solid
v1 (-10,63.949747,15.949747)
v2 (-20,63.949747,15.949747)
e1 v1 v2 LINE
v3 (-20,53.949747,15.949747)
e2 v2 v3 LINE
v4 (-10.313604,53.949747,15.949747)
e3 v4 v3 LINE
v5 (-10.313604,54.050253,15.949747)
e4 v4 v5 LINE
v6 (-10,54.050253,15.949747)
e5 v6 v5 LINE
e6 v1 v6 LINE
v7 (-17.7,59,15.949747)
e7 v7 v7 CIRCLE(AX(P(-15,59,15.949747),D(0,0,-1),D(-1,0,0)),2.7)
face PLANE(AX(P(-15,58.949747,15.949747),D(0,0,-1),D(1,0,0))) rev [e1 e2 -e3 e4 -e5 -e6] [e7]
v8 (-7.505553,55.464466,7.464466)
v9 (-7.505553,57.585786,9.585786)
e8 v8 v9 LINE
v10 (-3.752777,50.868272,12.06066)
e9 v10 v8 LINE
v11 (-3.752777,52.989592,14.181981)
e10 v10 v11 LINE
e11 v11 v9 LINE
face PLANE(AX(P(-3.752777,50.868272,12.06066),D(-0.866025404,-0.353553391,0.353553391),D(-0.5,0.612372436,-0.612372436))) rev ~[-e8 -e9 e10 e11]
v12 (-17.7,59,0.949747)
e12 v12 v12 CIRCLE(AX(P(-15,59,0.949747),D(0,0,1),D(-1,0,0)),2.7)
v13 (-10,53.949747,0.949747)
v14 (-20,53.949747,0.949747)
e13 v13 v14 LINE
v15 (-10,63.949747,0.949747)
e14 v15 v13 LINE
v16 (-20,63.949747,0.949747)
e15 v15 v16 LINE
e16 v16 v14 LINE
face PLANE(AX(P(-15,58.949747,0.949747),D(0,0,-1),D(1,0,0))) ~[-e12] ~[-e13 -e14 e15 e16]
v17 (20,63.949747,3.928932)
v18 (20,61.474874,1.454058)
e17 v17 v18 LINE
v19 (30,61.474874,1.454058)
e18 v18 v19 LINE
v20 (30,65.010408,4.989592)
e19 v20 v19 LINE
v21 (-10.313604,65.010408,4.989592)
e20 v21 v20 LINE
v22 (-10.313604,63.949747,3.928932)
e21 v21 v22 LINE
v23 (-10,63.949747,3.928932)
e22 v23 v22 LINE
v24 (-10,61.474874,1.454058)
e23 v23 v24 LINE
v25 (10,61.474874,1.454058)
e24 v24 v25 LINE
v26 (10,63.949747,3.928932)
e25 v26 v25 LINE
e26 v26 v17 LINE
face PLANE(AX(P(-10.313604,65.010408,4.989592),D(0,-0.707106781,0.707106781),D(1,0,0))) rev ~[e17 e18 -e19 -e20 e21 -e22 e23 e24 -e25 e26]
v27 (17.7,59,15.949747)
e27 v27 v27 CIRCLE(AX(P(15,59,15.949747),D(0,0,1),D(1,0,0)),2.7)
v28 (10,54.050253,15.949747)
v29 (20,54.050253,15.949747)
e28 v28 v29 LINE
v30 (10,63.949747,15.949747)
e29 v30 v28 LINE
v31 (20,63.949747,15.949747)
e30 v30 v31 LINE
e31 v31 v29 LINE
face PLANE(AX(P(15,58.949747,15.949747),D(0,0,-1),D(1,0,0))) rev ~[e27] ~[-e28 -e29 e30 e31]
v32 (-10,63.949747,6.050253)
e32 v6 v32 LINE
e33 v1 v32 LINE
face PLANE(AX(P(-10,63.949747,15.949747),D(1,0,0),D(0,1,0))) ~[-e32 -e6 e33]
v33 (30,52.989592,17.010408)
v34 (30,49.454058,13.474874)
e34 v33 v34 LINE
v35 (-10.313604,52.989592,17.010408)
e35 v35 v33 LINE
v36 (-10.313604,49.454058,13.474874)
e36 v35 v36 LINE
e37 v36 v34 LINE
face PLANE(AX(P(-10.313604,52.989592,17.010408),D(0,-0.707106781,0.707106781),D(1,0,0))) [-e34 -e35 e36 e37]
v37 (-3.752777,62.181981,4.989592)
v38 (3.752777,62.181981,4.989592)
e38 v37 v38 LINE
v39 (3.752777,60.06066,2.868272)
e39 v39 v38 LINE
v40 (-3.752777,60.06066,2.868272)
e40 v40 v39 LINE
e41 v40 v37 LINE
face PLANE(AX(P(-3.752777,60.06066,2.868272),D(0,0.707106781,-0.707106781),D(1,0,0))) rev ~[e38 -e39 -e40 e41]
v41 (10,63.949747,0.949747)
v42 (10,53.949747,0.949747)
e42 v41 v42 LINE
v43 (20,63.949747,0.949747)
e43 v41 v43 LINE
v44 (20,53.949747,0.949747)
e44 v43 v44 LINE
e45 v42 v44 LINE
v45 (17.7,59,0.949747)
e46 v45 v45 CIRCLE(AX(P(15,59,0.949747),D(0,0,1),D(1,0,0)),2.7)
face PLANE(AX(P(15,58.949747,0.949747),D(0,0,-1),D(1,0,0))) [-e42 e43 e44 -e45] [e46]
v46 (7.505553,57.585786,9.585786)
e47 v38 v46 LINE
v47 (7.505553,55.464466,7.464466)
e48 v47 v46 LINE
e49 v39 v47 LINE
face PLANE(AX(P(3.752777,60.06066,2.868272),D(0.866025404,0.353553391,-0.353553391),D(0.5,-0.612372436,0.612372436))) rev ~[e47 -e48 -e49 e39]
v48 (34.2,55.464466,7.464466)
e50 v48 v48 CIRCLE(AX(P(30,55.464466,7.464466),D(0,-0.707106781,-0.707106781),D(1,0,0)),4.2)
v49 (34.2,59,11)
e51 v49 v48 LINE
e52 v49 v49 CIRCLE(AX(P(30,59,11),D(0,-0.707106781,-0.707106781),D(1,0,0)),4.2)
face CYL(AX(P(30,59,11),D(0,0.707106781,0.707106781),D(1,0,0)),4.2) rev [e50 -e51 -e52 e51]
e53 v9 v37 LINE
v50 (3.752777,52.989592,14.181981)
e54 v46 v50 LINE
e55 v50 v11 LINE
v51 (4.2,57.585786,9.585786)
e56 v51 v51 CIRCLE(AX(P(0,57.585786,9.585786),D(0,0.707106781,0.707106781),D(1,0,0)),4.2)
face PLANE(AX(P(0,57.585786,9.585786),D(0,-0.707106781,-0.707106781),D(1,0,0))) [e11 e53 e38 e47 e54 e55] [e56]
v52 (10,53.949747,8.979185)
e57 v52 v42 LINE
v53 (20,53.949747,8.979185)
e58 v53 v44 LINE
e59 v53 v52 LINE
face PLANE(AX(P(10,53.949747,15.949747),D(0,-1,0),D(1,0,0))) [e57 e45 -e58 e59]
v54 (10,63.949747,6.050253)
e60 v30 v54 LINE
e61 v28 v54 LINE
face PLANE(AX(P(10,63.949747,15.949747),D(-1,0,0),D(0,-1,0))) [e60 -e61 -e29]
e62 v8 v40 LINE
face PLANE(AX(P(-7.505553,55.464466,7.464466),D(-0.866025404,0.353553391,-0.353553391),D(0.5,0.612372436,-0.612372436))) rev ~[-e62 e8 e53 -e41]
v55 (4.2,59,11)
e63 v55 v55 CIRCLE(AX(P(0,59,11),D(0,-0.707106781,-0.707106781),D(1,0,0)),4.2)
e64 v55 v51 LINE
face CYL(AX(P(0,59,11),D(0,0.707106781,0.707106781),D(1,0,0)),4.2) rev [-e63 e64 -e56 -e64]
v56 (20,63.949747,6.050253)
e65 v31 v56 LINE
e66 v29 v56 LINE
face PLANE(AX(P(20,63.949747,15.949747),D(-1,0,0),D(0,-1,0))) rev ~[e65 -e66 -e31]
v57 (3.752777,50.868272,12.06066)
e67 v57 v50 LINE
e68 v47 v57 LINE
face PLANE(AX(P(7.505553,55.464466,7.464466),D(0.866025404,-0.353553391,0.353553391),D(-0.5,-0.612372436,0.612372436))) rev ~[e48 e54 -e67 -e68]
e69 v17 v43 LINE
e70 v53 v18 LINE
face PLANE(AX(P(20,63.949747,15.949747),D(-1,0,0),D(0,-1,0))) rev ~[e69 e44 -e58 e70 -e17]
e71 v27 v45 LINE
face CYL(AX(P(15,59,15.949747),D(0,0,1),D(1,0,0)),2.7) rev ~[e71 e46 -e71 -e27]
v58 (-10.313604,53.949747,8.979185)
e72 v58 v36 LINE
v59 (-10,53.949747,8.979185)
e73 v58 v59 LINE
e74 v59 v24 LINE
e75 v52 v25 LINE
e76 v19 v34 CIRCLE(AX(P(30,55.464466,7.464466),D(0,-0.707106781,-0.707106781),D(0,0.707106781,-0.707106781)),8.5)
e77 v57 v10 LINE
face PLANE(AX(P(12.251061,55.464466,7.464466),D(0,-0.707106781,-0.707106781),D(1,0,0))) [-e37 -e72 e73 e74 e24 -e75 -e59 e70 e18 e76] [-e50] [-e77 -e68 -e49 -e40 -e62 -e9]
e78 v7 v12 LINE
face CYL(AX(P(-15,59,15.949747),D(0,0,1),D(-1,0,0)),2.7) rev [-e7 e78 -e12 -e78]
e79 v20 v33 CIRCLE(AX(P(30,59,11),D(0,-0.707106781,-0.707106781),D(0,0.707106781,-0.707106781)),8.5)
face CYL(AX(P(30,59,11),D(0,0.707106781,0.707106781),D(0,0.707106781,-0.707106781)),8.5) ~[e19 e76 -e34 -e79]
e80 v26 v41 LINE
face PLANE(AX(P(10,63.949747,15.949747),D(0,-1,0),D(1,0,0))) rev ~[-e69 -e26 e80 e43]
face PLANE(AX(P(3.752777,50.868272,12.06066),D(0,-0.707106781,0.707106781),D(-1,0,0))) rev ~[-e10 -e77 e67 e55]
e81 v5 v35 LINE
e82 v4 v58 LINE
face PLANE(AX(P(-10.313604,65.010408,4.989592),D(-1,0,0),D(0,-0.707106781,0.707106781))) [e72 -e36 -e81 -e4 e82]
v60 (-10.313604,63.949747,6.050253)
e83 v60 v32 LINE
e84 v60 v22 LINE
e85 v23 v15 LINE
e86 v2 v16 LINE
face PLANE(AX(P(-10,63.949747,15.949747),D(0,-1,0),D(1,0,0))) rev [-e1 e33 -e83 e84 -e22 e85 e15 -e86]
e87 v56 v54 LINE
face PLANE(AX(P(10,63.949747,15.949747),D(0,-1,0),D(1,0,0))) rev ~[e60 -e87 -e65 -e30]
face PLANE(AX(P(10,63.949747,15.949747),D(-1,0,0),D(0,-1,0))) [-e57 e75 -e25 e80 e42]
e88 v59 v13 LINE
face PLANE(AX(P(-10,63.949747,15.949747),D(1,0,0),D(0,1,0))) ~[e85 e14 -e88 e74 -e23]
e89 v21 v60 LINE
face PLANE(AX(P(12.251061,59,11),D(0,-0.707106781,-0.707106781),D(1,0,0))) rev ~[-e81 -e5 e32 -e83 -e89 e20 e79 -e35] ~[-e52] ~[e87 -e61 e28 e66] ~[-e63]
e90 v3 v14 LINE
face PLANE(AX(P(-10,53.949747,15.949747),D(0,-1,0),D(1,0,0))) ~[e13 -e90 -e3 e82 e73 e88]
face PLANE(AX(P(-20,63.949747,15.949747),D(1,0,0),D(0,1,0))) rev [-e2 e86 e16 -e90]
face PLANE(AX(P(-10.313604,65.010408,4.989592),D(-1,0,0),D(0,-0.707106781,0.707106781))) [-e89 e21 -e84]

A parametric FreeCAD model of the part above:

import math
import FreeCAD as App
import Part
import Sketcher
from FreeCAD import Vector
Q = App.Units.Quantity


def add_polygon(sketch, points):
    """Adds a closed chain of lines whose ends are joined by coincident constraints."""
    first, n = sketch.GeometryCount, len(points)
    for a, b in zip(points, points[1:] + points[:1]):
        sketch.addGeometry(Part.LineSegment(App.Vector(*a, 0), App.Vector(*b, 0)), False)
    for i in range(n):
        sketch.addConstraint(Sketcher.Constraint("Coincident", first + i, 2, first + (i + 1) % n, 1))

doc = App.newDocument("Part")
body = doc.addObject("PartDesign::Body", "Body")

# Sketch on XZ plane
sketch1 = body.newObject("Sketcher::SketchObject", "Sketch")
sketch1.AttachmentSupport = (doc.getObject("XZ_Plane"), [""])
sketch1.MapMode = "FlatFace"
sketch1.addGeometry([
    Part.ArcOfCircle(Part.Circle(Vector(30, 0, 0), Vector(0, 0, 1), 8.5), math.radians(-90), math.radians(90)),  # 0
    Part.LineSegment(Vector(30, 8.5, 0), Vector(-10.3, 8.5, 0)),  # 1
    Part.LineSegment(Vector(-10.3, 8.5, 0), Vector(-10.3, -8.5, 0)),  # 2
    Part.LineSegment(Vector(-10.3, -8.5, 0), Vector(30, -8.5, 0)),  # 3
    Part.Circle(Vector(0, 0, 0), Vector(0, 0, 1), 4.2),  # 4
    Part.Circle(Vector(30, 0, 0), Vector(0, 0, 1), 4.2),  # 5
], False)
sketch1.addConstraint([
    Sketcher.Constraint("Tangent", 0, 2, 1, 1),
    Sketcher.Constraint("Coincident", 1, 2, 2, 1),
    Sketcher.Constraint("Coincident", 2, 2, 3, 1),
    Sketcher.Constraint("Tangent", 3, 2, 0, 1),
    Sketcher.Constraint("Horizontal", 1),
    Sketcher.Constraint("Vertical", 2),
    Sketcher.Constraint("Horizontal", 3),
    Sketcher.Constraint("Coincident", 4, 3, -1, 1),
    Sketcher.Constraint("Coincident", 5, 3, 0, 3),
    Sketcher.Constraint("Equal", 4, 5),
    Sketcher.Constraint("PointOnObject", 0, 3, -1),
    Sketcher.Constraint("Diameter", 4, 8.4),
    Sketcher.Constraint("Radius", 0, 8.5),
    Sketcher.Constraint("DistanceX", -1, 1, 0, 3, 30.0),
    Sketcher.Constraint("DistanceX", 1, 2, 1, 1, 40.313604),
])
pad1 = body.newObject("PartDesign::Pad", "Pad")
pad1.Profile = sketch1
pad1.Length = 5

# Sketch on an angled plane
sketch2 = body.newObject("Sketcher::SketchObject", "Sketch001")
sketch2.Placement = App.Placement(Vector(10, 7, 0), App.Rotation(Vector(1, 0, 0), Vector(0, -0.707106781, 0.707106781), Vector(0, -0.707106781, -0.707106781), "ZXY"))
add_polygon(sketch2, [(0, 10), (0, 0), (10, 0), (10, 10)])  # lines 0-3
sketch2.addConstraint([
    Sketcher.Constraint("Vertical", 0),
    Sketcher.Constraint("Horizontal", 1),
    Sketcher.Constraint("Vertical", 2),
    Sketcher.Constraint("Horizontal", 3),
    Sketcher.Constraint("Coincident", 0, 2, -1, 1),
    Sketcher.Constraint("Equal", 3, 0),
    Sketcher.Constraint("DistanceX", 1, 1, 1, 2, 10.0),
])
pad2 = body.newObject("PartDesign::Pad", "Pad001")
pad2.Profile = sketch2
pad2.Length = 15

# Sketch on XZ plane
sketch3 = body.newObject("Sketcher::SketchObject", "Sketch002")
sketch3.AttachmentSupport = (doc.getObject("XZ_Plane"), [""])
sketch3.MapMode = "FlatFace"
sketch3.AttachmentOffset = App.Placement(Vector(0, 0, 5), App.Rotation())
add_polygon(sketch3, [(4, 6), (-4, 6), (-8, 0), (-4, -6), (4, -6), (8, 0)])  # lines 0-5
sketch3.addConstraint([
    Sketcher.Constraint("Horizontal", 0),
    Sketcher.Constraint("Horizontal", 3),
    Sketcher.Constraint("Symmetric", 0, 2, 3, 2, -1, 1),
    Sketcher.Constraint("Symmetric", 1, 2, 4, 2, -1, 1),
    Sketcher.Constraint("PointOnObject", 1, 2, -1),
    Sketcher.Constraint("Parallel", 2, 5),
    Sketcher.Constraint("Vertical", 0, 2, 2, 2),
    Sketcher.Constraint("Angle", 1, Q("-120 deg")),
    Sketcher.Constraint("DistanceY", 2, 2, 0, 2, 13.0),
    Sketcher.Constraint("DistanceX", 0, 2, 0, 1, 7.505554),
])
pocket1 = body.newObject("PartDesign::Pocket", "Pocket")
pocket1.Profile = sketch3
pocket1.Length = 3

# Sketch on an angled plane
sketch4 = body.newObject("Sketcher::SketchObject", "Sketch003")
sketch4.Placement = App.Placement(Vector(10, 7, 0), App.Rotation(Vector(1, 0, 0), Vector(0, 0.707106781, -0.707106781), Vector(0, 0.707106781, 0.707106781), "ZXY"))
sketch4.addGeometry(Part.Circle(Vector(5, -4.9, 0), Vector(0, 0, 1), 2.7), False)
sketch4.addConstraint([
    Sketcher.Constraint("Diameter", 0, 5.4),
    Sketcher.Constraint("DistanceX", -1, 1, 0, 3, 5.0),
    Sketcher.Constraint("DistanceY", 0, 3, -1, 1, 4.949747),
])
pocket2 = body.newObject("PartDesign::Pocket", "Pocket001")
pocket2.Profile = sketch4
pocket2.Type = "ThroughAll"
doc.recompute()

mirrored = body.newObject("PartDesign::Mirrored", "Mirrored")
mirrored.Originals = [pad2, pocket2]
mirrored.MirrorPlane = (doc.getObject("YZ_Plane"), [""])
body.Tip = mirrored
body2 = doc.addObject("PartDesign::Body", "Body001")
doc.recompute()

body.Placement = App.Placement(Vector(0, 59, 11), App.Rotation(Vector(1, 0, 0), 45))
boolean = body2.newObject("PartDesign::Boolean", "Boolean")
boolean.Type = "Fuse"
boolean.addObjects([body])

doc.recompute()
